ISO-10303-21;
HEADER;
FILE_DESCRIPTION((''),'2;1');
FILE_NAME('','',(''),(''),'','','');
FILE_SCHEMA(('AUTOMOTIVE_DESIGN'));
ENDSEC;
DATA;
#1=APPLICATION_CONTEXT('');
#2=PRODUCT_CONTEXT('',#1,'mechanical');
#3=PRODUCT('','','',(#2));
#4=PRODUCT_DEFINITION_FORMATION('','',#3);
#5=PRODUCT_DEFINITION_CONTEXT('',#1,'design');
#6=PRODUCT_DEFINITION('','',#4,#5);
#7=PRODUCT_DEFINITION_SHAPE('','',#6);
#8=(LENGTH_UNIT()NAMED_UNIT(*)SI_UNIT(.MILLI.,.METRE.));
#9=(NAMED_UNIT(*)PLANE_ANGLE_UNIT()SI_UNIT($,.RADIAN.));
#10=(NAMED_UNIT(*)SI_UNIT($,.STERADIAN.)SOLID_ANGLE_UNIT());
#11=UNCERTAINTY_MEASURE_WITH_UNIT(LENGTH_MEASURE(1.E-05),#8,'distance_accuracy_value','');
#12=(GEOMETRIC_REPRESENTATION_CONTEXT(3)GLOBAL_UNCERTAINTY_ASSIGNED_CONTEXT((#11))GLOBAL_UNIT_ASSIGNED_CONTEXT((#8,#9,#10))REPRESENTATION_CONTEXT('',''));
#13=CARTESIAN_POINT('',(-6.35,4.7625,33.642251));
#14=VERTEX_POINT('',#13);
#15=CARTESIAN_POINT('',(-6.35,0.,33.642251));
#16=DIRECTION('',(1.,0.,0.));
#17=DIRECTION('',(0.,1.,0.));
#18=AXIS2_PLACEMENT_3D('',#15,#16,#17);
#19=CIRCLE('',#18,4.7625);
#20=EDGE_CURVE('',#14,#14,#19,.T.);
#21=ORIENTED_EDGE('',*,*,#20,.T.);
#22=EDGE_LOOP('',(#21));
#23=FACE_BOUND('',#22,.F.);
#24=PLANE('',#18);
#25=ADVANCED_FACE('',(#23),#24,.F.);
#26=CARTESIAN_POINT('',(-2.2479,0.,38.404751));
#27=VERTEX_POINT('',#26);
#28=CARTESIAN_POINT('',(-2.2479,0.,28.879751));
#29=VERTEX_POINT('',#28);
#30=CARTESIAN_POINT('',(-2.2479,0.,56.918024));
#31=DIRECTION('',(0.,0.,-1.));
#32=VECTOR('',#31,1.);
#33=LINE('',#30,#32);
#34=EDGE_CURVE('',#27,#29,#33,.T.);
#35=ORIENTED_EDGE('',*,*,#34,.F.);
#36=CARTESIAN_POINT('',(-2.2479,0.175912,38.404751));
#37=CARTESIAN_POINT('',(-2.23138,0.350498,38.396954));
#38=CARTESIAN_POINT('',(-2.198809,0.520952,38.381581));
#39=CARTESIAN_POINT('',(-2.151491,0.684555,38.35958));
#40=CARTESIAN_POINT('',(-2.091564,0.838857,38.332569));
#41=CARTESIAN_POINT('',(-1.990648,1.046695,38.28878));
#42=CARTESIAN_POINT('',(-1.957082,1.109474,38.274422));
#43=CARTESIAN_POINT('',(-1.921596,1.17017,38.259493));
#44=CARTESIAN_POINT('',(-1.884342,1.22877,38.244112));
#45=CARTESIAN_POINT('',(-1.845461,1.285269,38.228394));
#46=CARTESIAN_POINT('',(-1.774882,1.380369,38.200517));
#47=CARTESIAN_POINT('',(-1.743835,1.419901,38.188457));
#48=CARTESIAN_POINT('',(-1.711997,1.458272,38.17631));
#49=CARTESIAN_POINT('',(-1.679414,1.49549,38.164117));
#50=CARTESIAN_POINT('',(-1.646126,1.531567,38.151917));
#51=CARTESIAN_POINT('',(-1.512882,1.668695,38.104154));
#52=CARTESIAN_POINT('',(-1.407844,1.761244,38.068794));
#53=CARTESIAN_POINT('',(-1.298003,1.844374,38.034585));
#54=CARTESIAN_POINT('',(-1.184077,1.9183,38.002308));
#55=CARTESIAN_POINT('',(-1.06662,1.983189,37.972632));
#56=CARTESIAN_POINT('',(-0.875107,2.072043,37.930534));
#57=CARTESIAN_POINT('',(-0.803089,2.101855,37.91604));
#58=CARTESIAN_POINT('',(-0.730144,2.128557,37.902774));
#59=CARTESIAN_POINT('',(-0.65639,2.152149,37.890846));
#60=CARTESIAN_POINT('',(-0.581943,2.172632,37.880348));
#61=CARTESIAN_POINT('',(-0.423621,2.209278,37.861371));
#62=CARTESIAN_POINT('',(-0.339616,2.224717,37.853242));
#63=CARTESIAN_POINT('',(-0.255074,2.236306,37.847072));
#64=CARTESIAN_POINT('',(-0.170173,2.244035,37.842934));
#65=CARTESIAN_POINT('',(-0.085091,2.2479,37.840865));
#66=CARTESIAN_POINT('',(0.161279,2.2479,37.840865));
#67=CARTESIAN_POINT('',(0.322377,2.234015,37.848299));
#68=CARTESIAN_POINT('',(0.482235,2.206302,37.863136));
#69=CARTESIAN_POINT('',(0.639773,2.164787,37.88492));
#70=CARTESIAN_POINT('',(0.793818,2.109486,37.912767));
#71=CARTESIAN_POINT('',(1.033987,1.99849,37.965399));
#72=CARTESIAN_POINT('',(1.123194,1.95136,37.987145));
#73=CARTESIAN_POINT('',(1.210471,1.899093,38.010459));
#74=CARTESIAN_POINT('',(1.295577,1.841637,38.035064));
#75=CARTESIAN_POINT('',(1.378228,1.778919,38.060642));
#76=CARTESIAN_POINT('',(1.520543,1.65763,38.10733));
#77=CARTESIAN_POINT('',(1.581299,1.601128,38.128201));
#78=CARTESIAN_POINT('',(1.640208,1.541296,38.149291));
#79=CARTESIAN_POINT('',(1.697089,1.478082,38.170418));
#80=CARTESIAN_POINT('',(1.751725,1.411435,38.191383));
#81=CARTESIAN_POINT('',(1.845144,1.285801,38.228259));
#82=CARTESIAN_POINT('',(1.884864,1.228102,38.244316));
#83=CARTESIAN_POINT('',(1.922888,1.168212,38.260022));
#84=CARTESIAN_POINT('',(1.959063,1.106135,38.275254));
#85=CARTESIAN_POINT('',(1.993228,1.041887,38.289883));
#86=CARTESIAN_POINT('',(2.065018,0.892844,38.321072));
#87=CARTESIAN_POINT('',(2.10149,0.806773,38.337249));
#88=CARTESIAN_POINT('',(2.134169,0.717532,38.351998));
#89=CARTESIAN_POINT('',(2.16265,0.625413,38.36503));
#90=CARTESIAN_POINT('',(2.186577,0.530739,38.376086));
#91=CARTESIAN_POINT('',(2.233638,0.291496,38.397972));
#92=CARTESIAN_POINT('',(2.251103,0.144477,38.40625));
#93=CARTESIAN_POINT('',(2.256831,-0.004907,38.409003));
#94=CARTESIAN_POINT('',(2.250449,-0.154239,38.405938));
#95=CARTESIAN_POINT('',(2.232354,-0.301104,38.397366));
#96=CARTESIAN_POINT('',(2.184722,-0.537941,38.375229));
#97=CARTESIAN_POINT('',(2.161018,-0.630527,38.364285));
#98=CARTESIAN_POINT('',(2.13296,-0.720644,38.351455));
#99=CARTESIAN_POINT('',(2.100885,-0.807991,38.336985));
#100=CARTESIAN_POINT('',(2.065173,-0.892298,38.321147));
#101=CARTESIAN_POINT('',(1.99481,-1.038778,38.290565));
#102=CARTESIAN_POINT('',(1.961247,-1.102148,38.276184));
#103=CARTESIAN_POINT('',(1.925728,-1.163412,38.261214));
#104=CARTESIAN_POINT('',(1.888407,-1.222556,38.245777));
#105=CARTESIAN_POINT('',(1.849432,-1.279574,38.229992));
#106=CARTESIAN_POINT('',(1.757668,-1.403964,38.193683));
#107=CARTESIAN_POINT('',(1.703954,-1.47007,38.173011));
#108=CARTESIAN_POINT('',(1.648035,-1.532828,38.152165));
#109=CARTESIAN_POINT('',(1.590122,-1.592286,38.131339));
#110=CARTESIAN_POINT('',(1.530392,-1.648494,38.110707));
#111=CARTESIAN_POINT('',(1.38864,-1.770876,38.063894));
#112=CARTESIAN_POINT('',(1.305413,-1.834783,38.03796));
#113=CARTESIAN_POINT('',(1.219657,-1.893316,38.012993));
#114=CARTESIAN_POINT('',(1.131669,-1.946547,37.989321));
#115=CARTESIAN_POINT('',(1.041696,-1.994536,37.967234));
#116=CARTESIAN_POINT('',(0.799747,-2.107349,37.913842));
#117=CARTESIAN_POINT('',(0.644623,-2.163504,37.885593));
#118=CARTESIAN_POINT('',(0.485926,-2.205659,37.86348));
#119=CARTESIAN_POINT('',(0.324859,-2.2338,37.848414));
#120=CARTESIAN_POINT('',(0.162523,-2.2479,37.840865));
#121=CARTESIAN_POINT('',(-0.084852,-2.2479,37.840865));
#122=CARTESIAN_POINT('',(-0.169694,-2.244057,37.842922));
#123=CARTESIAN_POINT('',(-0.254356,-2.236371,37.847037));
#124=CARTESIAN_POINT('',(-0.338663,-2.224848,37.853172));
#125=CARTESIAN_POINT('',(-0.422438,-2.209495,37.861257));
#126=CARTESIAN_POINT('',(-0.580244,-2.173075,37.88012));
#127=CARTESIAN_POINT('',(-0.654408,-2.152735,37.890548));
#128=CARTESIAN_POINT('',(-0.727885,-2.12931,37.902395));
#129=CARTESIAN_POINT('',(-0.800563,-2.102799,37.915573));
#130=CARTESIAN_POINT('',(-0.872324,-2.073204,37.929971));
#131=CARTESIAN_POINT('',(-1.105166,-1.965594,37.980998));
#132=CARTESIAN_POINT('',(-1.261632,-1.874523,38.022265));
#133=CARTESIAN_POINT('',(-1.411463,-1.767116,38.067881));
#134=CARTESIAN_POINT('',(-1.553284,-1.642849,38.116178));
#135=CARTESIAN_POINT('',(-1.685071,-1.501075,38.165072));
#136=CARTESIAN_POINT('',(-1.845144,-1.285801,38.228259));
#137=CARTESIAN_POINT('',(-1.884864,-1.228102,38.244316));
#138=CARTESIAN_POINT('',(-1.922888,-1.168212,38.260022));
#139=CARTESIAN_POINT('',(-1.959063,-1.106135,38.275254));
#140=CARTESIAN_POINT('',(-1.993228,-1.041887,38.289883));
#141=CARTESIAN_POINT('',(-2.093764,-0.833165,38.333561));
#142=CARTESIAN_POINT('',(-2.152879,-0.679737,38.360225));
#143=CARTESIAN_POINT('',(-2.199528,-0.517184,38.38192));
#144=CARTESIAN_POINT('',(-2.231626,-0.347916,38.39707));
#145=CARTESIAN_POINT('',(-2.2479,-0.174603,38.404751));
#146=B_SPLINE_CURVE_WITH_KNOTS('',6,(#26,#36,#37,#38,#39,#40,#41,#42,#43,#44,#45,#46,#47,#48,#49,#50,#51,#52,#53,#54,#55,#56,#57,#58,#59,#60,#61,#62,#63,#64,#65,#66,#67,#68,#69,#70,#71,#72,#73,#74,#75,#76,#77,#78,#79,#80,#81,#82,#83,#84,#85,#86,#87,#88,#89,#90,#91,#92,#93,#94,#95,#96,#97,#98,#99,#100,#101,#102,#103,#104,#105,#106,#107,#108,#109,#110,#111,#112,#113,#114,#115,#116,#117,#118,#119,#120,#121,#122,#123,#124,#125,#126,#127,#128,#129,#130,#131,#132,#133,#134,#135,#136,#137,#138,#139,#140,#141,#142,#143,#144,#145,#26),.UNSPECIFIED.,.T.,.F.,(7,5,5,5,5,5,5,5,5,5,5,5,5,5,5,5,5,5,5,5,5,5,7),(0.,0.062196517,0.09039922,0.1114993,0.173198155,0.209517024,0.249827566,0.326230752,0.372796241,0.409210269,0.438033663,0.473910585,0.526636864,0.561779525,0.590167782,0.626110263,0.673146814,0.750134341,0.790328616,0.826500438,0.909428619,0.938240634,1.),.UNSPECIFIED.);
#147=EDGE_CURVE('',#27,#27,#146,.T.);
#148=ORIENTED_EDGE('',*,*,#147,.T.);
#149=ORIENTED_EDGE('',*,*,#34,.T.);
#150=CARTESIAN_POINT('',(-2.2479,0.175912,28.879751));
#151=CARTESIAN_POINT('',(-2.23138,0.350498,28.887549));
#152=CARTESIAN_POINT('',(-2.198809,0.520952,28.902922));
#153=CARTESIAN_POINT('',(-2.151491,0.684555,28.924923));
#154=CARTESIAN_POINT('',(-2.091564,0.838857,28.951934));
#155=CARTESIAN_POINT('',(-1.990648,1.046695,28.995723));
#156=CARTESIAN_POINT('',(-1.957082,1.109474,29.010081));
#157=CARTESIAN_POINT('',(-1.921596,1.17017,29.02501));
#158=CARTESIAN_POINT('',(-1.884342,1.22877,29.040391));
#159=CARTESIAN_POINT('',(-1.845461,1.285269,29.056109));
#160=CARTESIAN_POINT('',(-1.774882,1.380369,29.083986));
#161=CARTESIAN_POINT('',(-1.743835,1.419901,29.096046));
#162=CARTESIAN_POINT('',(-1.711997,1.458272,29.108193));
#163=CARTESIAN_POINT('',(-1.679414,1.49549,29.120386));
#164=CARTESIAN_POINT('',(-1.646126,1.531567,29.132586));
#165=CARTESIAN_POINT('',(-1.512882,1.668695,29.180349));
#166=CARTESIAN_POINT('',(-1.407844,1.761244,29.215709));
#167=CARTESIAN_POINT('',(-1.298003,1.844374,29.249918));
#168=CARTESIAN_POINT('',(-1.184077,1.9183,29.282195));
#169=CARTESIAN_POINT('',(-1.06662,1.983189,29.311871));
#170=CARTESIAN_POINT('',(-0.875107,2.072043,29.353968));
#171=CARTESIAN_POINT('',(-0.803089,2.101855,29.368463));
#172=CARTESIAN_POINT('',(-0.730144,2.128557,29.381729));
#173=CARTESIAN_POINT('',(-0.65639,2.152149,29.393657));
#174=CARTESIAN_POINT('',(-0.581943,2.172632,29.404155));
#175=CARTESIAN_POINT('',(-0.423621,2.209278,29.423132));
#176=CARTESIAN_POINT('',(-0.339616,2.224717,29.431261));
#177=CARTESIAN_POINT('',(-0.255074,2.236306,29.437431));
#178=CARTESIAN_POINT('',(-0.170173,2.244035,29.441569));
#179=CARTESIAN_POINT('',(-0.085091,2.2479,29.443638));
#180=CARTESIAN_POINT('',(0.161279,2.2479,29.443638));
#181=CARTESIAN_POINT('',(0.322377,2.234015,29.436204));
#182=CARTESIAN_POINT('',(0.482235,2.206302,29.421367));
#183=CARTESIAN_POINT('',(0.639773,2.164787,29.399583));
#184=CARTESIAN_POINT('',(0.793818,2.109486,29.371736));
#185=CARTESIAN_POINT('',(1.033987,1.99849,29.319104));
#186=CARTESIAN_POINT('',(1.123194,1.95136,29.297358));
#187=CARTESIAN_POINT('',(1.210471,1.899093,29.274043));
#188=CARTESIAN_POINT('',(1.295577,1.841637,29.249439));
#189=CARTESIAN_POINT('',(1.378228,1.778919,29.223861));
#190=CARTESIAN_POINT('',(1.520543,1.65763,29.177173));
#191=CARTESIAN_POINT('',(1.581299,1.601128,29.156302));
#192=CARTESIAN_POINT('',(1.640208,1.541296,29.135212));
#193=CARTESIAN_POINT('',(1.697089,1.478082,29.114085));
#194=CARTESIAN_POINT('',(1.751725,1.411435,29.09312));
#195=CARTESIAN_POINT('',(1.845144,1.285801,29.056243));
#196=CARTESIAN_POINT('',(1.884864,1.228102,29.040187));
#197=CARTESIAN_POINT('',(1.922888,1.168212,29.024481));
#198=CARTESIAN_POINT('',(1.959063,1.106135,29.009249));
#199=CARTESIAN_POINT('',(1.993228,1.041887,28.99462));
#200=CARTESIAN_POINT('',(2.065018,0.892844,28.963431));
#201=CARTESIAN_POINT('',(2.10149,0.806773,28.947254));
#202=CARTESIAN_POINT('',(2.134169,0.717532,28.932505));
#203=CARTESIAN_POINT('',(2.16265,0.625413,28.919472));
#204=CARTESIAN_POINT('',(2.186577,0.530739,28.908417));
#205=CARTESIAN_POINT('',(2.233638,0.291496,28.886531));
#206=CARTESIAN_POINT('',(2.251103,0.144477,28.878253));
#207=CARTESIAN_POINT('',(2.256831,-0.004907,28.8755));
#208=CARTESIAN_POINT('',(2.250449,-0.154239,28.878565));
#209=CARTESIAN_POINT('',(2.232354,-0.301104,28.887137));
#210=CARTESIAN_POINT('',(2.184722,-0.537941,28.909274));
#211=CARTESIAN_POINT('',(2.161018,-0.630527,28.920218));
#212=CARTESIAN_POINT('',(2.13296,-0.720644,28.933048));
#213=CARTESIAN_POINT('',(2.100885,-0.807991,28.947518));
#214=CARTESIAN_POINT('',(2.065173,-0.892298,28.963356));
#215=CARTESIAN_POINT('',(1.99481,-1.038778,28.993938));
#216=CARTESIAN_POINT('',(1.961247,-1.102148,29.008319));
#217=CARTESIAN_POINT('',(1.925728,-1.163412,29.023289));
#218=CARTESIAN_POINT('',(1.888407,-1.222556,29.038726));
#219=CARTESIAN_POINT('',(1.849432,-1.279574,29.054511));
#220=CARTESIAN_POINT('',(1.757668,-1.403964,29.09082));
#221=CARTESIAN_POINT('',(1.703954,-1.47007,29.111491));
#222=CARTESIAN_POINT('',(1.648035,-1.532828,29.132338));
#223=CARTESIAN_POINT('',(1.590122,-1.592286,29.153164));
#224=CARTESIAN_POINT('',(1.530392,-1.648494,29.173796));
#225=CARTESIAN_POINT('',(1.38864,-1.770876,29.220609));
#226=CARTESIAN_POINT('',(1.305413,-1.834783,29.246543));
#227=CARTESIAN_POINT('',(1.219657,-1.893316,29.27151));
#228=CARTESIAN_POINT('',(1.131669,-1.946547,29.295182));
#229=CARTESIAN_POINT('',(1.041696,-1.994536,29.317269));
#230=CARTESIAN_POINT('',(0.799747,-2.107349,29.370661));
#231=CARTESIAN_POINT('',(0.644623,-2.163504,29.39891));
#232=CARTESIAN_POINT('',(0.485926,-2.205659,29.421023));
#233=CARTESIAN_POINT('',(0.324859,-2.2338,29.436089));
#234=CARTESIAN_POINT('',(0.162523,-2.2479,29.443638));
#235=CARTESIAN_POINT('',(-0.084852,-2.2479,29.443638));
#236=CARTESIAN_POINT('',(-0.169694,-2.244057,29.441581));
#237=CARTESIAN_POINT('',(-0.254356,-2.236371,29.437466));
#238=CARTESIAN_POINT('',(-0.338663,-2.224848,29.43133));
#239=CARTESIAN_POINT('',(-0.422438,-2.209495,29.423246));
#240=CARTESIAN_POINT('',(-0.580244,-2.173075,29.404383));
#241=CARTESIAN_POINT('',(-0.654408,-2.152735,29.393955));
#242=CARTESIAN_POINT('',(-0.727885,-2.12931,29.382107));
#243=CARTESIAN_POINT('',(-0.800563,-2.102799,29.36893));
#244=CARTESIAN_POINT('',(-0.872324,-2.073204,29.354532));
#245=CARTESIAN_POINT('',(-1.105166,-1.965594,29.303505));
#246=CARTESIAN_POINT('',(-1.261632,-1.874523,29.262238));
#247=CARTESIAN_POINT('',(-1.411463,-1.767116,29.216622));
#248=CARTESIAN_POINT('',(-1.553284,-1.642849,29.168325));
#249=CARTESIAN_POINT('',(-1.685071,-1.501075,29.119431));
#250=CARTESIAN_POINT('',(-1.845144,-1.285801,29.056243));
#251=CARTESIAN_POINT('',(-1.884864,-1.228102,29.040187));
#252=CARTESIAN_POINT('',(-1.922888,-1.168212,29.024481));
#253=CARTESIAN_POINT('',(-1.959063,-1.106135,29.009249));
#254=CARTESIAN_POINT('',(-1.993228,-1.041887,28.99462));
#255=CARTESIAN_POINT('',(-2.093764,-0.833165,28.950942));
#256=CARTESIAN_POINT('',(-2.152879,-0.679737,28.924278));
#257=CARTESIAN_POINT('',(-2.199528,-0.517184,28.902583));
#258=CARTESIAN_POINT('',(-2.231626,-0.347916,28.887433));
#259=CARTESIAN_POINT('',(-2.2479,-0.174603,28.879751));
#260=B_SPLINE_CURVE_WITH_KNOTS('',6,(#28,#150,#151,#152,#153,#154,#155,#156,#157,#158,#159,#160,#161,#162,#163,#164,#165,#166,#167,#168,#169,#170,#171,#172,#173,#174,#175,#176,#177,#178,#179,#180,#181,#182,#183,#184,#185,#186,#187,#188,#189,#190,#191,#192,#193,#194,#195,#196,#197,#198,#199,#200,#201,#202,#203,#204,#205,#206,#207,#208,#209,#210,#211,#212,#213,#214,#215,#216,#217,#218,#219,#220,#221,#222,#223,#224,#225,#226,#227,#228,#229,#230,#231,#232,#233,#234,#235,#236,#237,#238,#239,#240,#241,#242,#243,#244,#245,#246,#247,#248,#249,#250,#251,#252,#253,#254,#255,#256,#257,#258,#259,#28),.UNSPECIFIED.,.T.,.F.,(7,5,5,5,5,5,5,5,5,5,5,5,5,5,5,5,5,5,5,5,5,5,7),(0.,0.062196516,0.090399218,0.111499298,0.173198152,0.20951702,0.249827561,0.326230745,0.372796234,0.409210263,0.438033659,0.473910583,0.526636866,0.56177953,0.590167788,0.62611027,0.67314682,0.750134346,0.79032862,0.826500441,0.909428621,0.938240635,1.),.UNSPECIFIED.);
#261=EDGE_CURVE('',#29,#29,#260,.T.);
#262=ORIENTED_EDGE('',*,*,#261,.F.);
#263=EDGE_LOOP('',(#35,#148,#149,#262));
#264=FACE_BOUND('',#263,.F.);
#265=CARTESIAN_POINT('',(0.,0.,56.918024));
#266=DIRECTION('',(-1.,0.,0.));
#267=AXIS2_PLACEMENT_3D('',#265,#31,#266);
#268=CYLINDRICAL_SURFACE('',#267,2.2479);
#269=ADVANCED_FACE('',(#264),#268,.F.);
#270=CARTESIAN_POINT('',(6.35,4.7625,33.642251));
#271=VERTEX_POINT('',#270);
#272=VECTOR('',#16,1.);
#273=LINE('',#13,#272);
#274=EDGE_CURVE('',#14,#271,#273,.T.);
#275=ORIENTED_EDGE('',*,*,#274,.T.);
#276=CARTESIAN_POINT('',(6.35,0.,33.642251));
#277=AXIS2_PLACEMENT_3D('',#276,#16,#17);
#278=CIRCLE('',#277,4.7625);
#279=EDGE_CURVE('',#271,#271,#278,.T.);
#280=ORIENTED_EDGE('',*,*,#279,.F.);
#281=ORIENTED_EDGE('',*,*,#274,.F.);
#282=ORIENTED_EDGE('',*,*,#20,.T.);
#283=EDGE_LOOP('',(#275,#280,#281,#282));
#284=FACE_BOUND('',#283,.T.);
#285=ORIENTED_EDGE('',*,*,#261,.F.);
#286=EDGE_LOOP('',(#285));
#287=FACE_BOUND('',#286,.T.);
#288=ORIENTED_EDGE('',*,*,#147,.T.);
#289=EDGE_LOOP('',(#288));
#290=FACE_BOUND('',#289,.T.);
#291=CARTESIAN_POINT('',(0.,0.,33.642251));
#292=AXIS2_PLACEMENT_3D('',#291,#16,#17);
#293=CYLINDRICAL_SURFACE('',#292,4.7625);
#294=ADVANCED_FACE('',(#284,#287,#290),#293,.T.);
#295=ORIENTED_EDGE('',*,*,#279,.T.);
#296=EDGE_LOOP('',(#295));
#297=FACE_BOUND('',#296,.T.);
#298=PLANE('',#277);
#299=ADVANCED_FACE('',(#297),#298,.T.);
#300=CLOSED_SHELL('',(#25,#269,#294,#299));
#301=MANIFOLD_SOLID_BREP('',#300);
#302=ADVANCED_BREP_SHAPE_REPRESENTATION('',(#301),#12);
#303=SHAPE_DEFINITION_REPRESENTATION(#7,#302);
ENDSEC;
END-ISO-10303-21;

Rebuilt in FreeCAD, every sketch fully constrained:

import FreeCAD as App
import Part
import Sketcher
Q = App.Units.Quantity

doc = App.newDocument("Part")
body = doc.addObject("PartDesign::Body", "Body")

sketch1 = doc.addObject("Sketcher::SketchObject", "Sketch")
body.addObject(sketch1)
sketch1.AttachmentSupport = (doc.YZ_Plane, [""])
sketch1.MapMode = "FlatFace"
sketch1.addGeometry(Part.Circle(App.Vector(0, 33.6, 0), App.Vector(0, 0, 1), 4.8), False)
sketch1.addConstraint([
    Sketcher.Constraint("PointOnObject", 0, 3, -2),
    Sketcher.Constraint("Diameter", 0, Q("0.375 in")),
    Sketcher.Constraint("DistanceY", -1, 1, 0, 3, Q("33.642251 mm")),
])
pad1 = doc.addObject("PartDesign::Pad", "Pad")
body.addObject(pad1)
pad1.Profile = sketch1
pad1.Length = Q("0.5 in")
pad1.Midplane = True

sketch2 = doc.addObject("Sketcher::SketchObject", "Sketch001")
body.addObject(sketch2)
sketch2.AttachmentSupport = (doc.XY_Plane, [""])
sketch2.MapMode = "FlatFace"
sketch2.AttachmentOffset = App.Placement(App.Vector(0, 0, 38.404751), App.Rotation())
sketch2.addGeometry(Part.Circle(App.Vector(0, 0, 0), App.Vector(0, 0, 1), 2.2), False)
sketch2.addConstraint([
    Sketcher.Constraint("Coincident", 0, 3, -1, 1),
    Sketcher.Constraint("Diameter", 0, Q("0.177 in")),
])
doc.recompute()
hole = doc.addObject("PartDesign::Hole", "Hole")
body.addObject(hole)
hole.Profile = sketch2
hole.ThreadType = "None"
hole.Diameter = Q("0.177 in")
hole.DepthType = "ThroughAll"

doc.recompute()
